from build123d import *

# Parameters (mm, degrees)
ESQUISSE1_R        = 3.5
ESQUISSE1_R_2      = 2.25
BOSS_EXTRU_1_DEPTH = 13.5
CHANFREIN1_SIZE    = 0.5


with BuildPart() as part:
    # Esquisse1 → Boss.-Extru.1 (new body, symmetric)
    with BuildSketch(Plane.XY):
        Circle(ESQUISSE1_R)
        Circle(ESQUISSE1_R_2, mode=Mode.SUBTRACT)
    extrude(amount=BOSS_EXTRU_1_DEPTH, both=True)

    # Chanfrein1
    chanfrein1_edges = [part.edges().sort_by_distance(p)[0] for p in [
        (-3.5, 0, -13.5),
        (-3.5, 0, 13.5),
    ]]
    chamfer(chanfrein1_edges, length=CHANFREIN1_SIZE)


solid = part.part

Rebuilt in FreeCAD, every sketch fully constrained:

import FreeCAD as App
import Part
import Sketcher
from FreeCAD import Vector


def edges_at(feature, points):
    """Names of the edges that pass closest to the given points."""
    edges = feature.Shape.Edges
    near = lambda p: min(range(len(edges)), key=lambda i: edges[i].distToShape(Part.Vertex(*p))[0])
    return sorted({f"Edge{near(p) + 1}" for p in points})

doc = App.newDocument("Part")
body = doc.addObject("PartDesign::Body", "Body")

sketch1 = body.newObject("Sketcher::SketchObject", "Sketch")
sketch1.AttachmentSupport = (doc.getObject("XY_Plane"), [""])
sketch1.MapMode = "FlatFace"
sketch1.addGeometry(Part.Circle(Vector(0, 0, 0), Vector(0, 0, 1), 3.5), False)
sketch1.addGeometry(Part.Circle(Vector(0, 0, 0), Vector(0, 0, 1), 2.25), False)
sketch1.addConstraint(Sketcher.Constraint("Coincident", 0, 3, -1, 1))
sketch1.addConstraint(Sketcher.Constraint("Coincident", 1, 3, -1, 1))
sketch1.addConstraint(Sketcher.Constraint("Diameter", 0, 7.0))
sketch1.addConstraint(Sketcher.Constraint("Diameter", 1, 4.5))
pad1 = body.newObject("PartDesign::Pad", "Pad")
pad1.Profile = sketch1
pad1.Length = 27
pad1.Midplane = True
doc.recompute()

chamfer = body.newObject("PartDesign::Chamfer", "Chamfer")
chamfer.Base = (pad1, edges_at(pad1, [(-3.5, 0, -13.5), (-3.5, 0, 13.5)]))
chamfer.Size = 0.5

doc.recompute()
